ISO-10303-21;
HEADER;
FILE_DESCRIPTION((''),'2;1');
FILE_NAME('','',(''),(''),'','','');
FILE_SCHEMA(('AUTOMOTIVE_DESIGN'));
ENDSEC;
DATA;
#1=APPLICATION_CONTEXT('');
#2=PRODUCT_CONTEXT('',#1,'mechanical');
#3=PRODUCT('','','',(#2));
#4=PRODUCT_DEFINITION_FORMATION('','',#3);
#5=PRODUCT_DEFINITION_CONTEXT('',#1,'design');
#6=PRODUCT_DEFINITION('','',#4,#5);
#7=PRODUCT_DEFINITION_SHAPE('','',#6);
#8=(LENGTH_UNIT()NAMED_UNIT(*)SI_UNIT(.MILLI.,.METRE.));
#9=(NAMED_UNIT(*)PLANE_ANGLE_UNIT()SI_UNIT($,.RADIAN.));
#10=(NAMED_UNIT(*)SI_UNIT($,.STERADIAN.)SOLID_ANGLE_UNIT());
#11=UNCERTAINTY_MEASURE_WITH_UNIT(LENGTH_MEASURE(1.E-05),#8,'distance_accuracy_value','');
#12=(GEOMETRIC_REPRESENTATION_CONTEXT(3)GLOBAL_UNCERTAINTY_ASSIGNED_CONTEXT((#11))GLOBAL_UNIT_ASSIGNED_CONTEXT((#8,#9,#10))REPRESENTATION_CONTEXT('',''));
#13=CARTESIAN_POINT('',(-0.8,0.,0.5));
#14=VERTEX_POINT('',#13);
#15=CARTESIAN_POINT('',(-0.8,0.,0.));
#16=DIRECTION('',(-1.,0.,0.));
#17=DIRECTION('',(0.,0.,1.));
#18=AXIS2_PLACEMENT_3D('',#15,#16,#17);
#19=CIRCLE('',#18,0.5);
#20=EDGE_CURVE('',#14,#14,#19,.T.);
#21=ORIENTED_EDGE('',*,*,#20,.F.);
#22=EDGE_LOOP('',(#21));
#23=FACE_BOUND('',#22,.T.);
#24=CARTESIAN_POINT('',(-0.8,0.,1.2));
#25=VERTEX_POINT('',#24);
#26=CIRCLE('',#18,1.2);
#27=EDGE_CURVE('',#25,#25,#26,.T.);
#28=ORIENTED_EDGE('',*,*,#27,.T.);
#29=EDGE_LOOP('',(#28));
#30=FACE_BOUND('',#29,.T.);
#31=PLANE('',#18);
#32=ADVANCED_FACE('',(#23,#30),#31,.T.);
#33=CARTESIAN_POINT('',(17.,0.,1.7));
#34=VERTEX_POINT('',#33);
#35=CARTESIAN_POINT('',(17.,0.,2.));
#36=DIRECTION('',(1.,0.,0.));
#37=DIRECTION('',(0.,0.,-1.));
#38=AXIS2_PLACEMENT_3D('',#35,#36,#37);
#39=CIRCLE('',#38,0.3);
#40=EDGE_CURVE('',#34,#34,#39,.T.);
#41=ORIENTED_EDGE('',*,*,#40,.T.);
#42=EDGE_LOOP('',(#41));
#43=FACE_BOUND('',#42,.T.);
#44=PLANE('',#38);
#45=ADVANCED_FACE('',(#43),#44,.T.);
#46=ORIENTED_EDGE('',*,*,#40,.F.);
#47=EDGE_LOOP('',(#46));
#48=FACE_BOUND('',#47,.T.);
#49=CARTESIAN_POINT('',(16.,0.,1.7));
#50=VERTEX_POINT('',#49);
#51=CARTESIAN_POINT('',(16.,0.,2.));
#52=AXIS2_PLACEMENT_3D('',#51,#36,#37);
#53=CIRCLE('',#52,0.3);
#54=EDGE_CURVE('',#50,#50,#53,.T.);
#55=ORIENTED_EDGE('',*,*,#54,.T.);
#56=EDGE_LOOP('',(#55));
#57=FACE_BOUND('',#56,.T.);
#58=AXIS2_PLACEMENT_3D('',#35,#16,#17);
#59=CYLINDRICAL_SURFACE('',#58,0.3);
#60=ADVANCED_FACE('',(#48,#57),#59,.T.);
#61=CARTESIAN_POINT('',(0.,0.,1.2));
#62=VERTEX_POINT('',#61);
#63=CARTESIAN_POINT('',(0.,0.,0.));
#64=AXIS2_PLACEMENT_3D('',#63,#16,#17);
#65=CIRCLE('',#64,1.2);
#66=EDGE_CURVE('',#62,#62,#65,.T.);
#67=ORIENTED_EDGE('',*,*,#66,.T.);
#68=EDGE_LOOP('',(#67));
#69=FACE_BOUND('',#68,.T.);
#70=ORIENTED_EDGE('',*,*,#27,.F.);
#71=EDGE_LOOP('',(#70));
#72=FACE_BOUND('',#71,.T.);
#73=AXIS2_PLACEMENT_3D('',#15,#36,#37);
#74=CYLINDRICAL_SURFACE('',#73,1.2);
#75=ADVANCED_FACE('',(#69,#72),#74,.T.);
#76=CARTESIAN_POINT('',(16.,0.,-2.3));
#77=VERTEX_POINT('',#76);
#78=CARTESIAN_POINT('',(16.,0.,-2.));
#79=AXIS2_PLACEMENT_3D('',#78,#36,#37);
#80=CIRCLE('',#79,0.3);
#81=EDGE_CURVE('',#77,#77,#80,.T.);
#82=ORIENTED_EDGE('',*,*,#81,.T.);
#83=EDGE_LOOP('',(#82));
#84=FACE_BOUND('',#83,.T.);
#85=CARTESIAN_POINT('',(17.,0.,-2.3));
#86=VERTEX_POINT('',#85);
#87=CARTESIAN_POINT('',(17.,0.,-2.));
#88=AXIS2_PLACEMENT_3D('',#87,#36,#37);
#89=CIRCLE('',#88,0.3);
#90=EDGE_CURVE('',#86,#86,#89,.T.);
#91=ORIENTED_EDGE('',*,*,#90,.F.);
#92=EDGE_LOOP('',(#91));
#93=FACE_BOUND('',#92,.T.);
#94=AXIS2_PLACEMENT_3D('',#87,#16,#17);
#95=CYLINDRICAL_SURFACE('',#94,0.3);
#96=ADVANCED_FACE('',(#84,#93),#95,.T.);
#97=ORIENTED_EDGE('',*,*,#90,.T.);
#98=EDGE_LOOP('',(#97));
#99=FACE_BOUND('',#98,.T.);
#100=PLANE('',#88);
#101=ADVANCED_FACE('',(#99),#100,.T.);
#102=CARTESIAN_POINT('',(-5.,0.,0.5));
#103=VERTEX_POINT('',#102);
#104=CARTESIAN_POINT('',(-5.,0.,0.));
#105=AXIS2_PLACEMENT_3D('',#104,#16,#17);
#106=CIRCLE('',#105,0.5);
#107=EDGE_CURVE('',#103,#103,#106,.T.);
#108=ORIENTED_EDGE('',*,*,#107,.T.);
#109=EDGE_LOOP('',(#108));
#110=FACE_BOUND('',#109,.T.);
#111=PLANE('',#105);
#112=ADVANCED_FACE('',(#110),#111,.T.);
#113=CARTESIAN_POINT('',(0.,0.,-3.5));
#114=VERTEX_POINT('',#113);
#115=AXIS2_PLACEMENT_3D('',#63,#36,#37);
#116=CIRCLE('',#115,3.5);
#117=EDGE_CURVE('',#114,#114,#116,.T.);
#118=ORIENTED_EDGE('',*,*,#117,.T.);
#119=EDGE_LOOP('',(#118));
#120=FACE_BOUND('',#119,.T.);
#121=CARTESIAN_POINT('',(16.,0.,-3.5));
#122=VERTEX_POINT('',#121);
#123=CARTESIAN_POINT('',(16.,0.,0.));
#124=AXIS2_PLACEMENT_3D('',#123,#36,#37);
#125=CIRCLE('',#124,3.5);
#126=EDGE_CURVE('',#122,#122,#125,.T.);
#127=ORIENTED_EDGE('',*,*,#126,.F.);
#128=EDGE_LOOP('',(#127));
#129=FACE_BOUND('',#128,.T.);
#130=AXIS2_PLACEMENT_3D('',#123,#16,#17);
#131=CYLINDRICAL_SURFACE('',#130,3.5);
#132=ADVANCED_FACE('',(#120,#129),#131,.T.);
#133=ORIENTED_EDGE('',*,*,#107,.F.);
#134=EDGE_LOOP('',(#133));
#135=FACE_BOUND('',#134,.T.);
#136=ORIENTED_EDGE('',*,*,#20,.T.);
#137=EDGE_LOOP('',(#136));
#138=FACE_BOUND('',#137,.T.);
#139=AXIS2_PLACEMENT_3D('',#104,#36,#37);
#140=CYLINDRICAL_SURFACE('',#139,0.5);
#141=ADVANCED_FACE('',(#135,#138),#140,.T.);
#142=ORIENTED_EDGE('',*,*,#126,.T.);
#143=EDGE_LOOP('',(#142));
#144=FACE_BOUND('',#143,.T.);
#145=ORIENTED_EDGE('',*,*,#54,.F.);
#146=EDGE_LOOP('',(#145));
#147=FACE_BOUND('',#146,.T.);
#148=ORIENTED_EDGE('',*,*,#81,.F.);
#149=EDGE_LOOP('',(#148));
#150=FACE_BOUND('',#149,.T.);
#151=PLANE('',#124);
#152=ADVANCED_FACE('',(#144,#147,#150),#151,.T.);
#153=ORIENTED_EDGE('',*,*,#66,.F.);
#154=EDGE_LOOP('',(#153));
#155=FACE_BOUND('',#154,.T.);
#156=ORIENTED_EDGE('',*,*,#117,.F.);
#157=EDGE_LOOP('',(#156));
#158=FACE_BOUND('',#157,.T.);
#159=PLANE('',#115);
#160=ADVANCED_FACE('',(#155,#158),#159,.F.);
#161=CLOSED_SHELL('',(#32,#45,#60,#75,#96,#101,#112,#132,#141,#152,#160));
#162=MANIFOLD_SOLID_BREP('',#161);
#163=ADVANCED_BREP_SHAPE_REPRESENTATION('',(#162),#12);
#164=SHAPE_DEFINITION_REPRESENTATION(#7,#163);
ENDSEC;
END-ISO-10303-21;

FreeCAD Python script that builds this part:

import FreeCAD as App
import Part
import Sketcher
Q = App.Units.Quantity

doc = App.newDocument("Part")
body = doc.addObject("PartDesign::Body", "Body")

sketch1 = body.newObject("Sketcher::SketchObject", "Sketch")
sketch1.AttachmentSupport = (doc.getObject("YZ_Plane"), [""])
sketch1.MapMode = "FlatFace"
sketch1.addGeometry(Part.Circle(App.Vector(0, 0, 0), App.Vector(0, 0, 1), 3.5), False)
sketch1.addConstraint([
    Sketcher.Constraint("Coincident", 0, 3, -1, 1),
    Sketcher.Constraint("Diameter", 0, Q("7 mm")),
])
pad1 = body.newObject("PartDesign::Pad", "Pad")
pad1.Profile = sketch1
pad1.Length = 16

sketch2 = body.newObject("Sketcher::SketchObject", "Sketch001")
sketch2.AttachmentSupport = (doc.getObject("YZ_Plane"), [""])
sketch2.MapMode = "FlatFace"
sketch2.addGeometry(Part.Circle(App.Vector(0, 0, 0), App.Vector(0, 0, 1), 1.2), False)
sketch2.addConstraint([
    Sketcher.Constraint("Coincident", 0, 3, -1, 1),
    Sketcher.Constraint("Diameter", 0, Q("2.4 mm")),
])
pad2 = body.newObject("PartDesign::Pad", "Pad001")
pad2.Profile = sketch2
pad2.Length = 0.8
pad2.Reversed = True

sketch3 = body.newObject("Sketcher::SketchObject", "Sketch002")
sketch3.AttachmentSupport = (doc.getObject("YZ_Plane"), [""])
sketch3.MapMode = "FlatFace"
sketch3.AttachmentOffset = App.Placement(App.Vector(0, 0, -0.8), App.Rotation())
sketch3.addGeometry(Part.Circle(App.Vector(0, 0, 0), App.Vector(0, 0, 1), 0.5), False)
sketch3.addConstraint([
    Sketcher.Constraint("Coincident", 0, 3, -1, 1),
    Sketcher.Constraint("Diameter", 0, Q("1 mm")),
])
pad3 = body.newObject("PartDesign::Pad", "Pad002")
pad3.Profile = sketch3
pad3.Length = 4.2
pad3.Reversed = True

sketch4 = body.newObject("Sketcher::SketchObject", "Sketch003")
sketch4.AttachmentSupport = (doc.getObject("YZ_Plane"), [""])
sketch4.MapMode = "FlatFace"
sketch4.AttachmentOffset = App.Placement(App.Vector(0, 0, 16), App.Rotation())
sketch4.addGeometry([
    Part.Circle(App.Vector(0, 2, 0), App.Vector(0, 0, 1), 0.3),
    Part.Circle(App.Vector(0, -2, 0), App.Vector(0, 0, 1), 0.3),
], False)
sketch4.addConstraint([
    Sketcher.Constraint("Equal", 0, 1),
    Sketcher.Constraint("Symmetric", 0, 3, 1, 3, -1, 1),
    Sketcher.Constraint("PointOnObject", 0, 3, -2),
    Sketcher.Constraint("Diameter", 0, Q("0.6 mm")),
    Sketcher.Constraint("DistanceY", -1, 1, 0, 3, Q("2 mm")),
])
pad4 = body.newObject("PartDesign::Pad", "Pad003")
pad4.Profile = sketch4
pad4.Length = 1

doc.recompute()
